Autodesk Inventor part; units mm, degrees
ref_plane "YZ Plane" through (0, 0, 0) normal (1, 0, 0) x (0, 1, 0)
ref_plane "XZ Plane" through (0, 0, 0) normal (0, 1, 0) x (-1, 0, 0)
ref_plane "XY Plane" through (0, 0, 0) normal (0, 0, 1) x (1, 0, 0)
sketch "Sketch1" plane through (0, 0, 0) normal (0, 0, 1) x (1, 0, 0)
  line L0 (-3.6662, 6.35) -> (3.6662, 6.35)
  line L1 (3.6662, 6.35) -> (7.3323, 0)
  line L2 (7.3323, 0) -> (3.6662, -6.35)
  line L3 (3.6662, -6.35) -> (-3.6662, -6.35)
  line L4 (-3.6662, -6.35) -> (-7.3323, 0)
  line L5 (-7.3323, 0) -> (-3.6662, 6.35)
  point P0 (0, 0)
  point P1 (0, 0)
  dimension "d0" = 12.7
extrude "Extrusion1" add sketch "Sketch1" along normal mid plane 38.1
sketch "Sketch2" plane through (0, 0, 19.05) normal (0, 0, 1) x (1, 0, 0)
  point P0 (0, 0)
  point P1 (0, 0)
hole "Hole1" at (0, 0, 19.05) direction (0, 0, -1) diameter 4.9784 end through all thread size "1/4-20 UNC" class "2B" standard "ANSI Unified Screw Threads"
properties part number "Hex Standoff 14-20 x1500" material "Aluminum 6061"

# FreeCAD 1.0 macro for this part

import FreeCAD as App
import Part
import Sketcher
from FreeCAD import Vector
Q = App.Units.Quantity


def add_polygon(sketch, points):
    """Adds a closed chain of lines whose ends are joined by coincident constraints."""
    first, n = sketch.GeometryCount, len(points)
    for a, b in zip(points, points[1:] + points[:1]):
        sketch.addGeometry(Part.LineSegment(App.Vector(*a, 0), App.Vector(*b, 0)), False)
    for i in range(n):
        sketch.addConstraint(Sketcher.Constraint("Coincident", first + i, 2, first + (i + 1) % n, 1))

doc = App.newDocument("Part")
params = doc.addObject("Spreadsheet::Sheet", "Params")
for row, (alias, value) in enumerate([
    ("pad1_length", "1.5 in"),
    ("sketch2_diameter", "0.196 in"),
    ("hole_diameter", "0.196 in"),
], start=1):
    params.set(f"A{row}", alias)
    params.set(f"B{row}", "=" + value)
    params.setAlias(f"B{row}", alias)

body = doc.addObject("PartDesign::Body", "Body")

# Sketch on XY plane
sketch1 = doc.addObject("Sketcher::SketchObject", "Sketch")
body.addObject(sketch1)
sketch1.AttachmentSupport = (doc.XY_Plane, [""])
sketch1.MapMode = "FlatFace"
add_polygon(sketch1, [(4, 6), (-4, 6), (-7, 0), (-4, -6), (4, -6), (7, 0)])  # lines 0-5
sketch1.addConstraint(Sketcher.Constraint("Horizontal", 0))
sketch1.addConstraint(Sketcher.Constraint("Horizontal", 3))
sketch1.addConstraint(Sketcher.Constraint("Symmetric", 0, 2, 3, 2, -1, 1))
sketch1.addConstraint(Sketcher.Constraint("Symmetric", 1, 2, 4, 2, -1, 1))
sketch1.addConstraint(Sketcher.Constraint("PointOnObject", 1, 2, -1))
sketch1.addConstraint(Sketcher.Constraint("Parallel", 2, 5))
sketch1.addConstraint(Sketcher.Constraint("Vertical", 0, 2, 2, 2))
sketch1.addConstraint(Sketcher.Constraint("DistanceY", 2, 2, 0, 2, Q("0.5 in")))
sketch1.addConstraint(Sketcher.Constraint("Angle", 1, Q("-119.9995 deg")))
sketch1.addConstraint(Sketcher.Constraint("DistanceX", 1, 2, 3, 2, Q("0.433 in")))
pad1 = doc.addObject("PartDesign::Pad", "Pad")
body.addObject(pad1)
pad1.Profile = sketch1
pad1.setExpression("Length", "Params.pad1_length")
pad1.Midplane = True

# Sketch on XY plane
sketch2 = doc.addObject("Sketcher::SketchObject", "Sketch001")
body.addObject(sketch2)
sketch2.AttachmentSupport = (doc.XY_Plane, [""])
sketch2.MapMode = "FlatFace"
sketch2.AttachmentOffset = App.Placement(Vector(0, 0, 0.75 * 25.4), App.Rotation())
sketch2.addGeometry(Part.Circle(Vector(0, 0, 0), Vector(0, 0, 1), 2.5), False)
sketch2.addConstraint(Sketcher.Constraint("Coincident", 0, 3, -1, 1))
sketch2.addConstraint(Sketcher.Constraint("Diameter", 0, Q("0.196 in")))
sketch2.setExpression("Constraints[1]", "Params.sketch2_diameter")
doc.recompute()
hole = doc.addObject("PartDesign::Hole", "Hole")
body.addObject(hole)
hole.Profile = sketch2
hole.ThreadType = "None"
hole.setExpression("Diameter", "Params.hole_diameter")
hole.DepthType = "ThroughAll"

doc.recompute()
